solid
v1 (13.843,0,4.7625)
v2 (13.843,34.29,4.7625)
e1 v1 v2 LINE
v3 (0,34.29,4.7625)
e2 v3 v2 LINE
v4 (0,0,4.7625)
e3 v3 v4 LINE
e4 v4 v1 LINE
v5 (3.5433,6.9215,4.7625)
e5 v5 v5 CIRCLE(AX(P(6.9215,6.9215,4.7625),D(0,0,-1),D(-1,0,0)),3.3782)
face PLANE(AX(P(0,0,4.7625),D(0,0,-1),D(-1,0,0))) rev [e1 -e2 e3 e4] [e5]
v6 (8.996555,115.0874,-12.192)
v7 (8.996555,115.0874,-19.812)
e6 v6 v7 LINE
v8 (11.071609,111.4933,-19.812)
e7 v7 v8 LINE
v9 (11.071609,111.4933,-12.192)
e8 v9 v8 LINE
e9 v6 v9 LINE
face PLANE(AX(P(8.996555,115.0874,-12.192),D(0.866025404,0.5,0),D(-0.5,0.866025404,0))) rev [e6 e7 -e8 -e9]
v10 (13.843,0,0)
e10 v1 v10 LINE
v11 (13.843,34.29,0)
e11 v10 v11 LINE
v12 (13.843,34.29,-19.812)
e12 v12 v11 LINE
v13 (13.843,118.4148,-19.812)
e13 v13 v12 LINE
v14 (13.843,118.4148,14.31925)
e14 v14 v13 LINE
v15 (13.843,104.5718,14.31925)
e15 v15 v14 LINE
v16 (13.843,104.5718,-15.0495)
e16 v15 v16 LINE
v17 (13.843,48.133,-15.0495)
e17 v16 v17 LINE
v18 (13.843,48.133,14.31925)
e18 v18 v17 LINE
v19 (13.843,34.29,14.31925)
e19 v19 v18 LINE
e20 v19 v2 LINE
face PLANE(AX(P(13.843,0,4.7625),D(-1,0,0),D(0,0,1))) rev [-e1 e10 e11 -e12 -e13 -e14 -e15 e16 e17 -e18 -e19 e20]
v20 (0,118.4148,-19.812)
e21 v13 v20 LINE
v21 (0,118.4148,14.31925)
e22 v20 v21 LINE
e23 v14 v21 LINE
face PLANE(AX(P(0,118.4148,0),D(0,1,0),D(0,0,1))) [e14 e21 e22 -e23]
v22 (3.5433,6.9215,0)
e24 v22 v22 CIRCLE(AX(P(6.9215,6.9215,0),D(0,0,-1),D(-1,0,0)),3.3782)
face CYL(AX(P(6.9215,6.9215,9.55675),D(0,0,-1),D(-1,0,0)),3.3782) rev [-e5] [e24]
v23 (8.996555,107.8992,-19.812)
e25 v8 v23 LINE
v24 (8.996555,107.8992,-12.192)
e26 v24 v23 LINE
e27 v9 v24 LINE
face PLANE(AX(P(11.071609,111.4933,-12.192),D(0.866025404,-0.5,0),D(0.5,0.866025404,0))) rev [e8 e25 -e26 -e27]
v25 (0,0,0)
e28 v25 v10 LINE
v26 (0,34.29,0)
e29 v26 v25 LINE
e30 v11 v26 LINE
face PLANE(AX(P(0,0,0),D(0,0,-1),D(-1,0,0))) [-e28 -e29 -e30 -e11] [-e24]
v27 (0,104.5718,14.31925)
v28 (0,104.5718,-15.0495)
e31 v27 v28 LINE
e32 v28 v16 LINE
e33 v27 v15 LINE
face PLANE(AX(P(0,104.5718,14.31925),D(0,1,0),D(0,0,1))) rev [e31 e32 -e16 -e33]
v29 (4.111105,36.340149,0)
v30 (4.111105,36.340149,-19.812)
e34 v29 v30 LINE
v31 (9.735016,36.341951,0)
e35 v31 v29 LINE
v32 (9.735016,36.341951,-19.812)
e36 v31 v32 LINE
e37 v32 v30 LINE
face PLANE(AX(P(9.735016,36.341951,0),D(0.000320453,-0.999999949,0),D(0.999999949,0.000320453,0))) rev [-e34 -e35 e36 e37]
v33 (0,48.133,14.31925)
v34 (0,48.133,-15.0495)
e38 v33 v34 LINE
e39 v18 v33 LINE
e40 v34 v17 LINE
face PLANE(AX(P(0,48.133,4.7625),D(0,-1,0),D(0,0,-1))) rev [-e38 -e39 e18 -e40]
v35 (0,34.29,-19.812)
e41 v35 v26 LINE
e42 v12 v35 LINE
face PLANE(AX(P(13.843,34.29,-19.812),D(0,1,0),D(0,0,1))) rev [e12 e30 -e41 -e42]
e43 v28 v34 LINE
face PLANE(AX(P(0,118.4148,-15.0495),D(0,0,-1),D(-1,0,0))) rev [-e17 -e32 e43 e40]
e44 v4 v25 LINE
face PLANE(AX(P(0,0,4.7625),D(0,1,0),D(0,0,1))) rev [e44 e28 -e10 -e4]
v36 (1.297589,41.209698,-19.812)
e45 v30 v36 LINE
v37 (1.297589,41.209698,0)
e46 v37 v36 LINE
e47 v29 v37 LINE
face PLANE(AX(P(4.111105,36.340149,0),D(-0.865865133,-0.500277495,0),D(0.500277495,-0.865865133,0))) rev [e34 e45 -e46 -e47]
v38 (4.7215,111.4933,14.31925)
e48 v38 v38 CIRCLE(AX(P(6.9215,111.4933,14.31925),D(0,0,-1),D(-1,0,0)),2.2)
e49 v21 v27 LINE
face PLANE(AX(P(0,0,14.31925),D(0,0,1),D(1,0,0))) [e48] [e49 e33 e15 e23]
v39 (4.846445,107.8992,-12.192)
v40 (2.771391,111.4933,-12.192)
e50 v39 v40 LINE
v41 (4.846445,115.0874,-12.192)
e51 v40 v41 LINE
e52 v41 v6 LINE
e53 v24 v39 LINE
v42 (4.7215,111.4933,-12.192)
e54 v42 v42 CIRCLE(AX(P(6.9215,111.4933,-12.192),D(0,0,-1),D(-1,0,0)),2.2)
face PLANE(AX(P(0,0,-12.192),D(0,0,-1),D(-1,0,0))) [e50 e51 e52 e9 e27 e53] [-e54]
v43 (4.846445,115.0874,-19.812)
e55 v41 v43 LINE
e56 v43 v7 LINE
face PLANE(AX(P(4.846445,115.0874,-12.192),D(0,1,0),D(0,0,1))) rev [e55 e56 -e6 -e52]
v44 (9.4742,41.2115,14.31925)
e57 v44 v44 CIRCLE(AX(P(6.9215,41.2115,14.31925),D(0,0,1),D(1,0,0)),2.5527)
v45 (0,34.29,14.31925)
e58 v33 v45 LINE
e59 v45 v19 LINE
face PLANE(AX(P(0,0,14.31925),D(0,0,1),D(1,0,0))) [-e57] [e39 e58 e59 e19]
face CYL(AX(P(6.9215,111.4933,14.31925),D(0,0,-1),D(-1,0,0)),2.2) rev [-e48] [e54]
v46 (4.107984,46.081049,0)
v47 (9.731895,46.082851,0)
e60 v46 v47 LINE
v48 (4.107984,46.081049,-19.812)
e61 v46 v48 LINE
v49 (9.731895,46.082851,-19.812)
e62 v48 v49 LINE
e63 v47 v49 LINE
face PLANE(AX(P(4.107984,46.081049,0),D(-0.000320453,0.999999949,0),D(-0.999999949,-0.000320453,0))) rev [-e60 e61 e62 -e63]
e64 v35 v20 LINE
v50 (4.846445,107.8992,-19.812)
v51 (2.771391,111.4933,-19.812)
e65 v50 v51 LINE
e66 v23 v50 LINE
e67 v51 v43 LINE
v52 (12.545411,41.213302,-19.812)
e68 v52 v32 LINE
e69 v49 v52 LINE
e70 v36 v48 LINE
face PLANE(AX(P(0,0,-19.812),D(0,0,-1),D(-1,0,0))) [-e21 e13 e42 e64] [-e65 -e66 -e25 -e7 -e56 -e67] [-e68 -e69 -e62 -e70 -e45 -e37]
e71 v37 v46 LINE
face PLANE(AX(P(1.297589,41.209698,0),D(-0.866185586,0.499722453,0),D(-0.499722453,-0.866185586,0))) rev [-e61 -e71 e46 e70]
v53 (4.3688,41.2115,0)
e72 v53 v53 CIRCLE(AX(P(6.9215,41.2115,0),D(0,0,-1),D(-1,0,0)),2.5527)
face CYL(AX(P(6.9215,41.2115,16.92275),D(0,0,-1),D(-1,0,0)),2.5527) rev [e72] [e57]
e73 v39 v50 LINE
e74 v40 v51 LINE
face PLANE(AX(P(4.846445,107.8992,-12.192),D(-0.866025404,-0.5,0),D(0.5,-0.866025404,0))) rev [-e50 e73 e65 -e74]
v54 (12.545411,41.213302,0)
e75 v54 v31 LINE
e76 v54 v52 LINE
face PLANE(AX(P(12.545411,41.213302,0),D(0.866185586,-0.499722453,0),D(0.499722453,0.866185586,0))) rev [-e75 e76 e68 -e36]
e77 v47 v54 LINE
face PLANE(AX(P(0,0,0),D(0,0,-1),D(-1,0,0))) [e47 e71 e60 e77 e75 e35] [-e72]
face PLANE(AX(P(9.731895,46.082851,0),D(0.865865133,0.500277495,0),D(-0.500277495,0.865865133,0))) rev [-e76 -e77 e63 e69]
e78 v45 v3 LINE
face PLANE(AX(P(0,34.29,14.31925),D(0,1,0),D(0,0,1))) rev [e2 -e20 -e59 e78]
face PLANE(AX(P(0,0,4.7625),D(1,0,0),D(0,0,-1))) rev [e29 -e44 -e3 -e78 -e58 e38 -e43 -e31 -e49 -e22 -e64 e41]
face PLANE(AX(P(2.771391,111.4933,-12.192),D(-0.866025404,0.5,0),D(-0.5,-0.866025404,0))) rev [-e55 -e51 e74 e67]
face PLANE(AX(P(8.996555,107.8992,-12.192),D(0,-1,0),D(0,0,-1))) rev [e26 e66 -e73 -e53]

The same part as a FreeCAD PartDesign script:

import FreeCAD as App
import Part
import Sketcher

V = App.Vector
Q = App.Units.Quantity


def add_polygon(sketch, points):
    """Adds a closed chain of lines whose ends are joined by coincident constraints."""
    first, n = sketch.GeometryCount, len(points)
    for a, b in zip(points, points[1:] + points[:1]):
        sketch.addGeometry(Part.LineSegment(App.Vector(*a, 0), App.Vector(*b, 0)), False)
    for i in range(n):
        sketch.addConstraint(Sketcher.Constraint("Coincident", first + i, 2, first + (i + 1) % n, 1))

doc = App.newDocument("Part")
body = doc.addObject("PartDesign::Body", "Body")

# Sketch on XY plane
sketch1 = body.newObject("Sketcher::SketchObject", "Sketch")
sketch1.AttachmentSupport = (doc.getObject("XY_Plane"), [""])
sketch1.MapMode = "FlatFace"
add_polygon(sketch1, [(0, 48), (0, 0), (14, 0), (14, 48)])  # lines 0-3
sketch1.addConstraint([
    Sketcher.Constraint("Vertical", 0),
    Sketcher.Constraint("Horizontal", 1),
    Sketcher.Constraint("Vertical", 2),
    Sketcher.Constraint("Horizontal", 3),
    Sketcher.Constraint("Coincident", 0, 2, -1, 1),
    Sketcher.Constraint("DistanceX", 1, 1, 1, 2, Q("0.545 in")),
    Sketcher.Constraint("DistanceY", 0, 2, 0, 1, Q("1.895 in")),
])
pad1 = body.newObject("PartDesign::Pad", "Pad")
pad1.Profile = sketch1
pad1.Length = Q("0.1875 in")

# Sketch on XY plane
sketch2 = body.newObject("Sketcher::SketchObject", "Sketch001")
sketch2.AttachmentSupport = (doc.getObject("XY_Plane"), [""])
sketch2.MapMode = "FlatFace"
sketch2.AttachmentOffset = App.Placement(V(0, 0, 0.1875 * 25.4), App.Rotation())
add_polygon(sketch2, [(0, 48), (0, 34), (14, 34), (14, 48)])  # lines 0-3
sketch2.addConstraint([
    Sketcher.Constraint("Vertical", 0),
    Sketcher.Constraint("Horizontal", 1),
    Sketcher.Constraint("Vertical", 2),
    Sketcher.Constraint("Horizontal", 3),
    Sketcher.Constraint("PointOnObject", 0, 2, -2),
    Sketcher.Constraint("Equal", 3, 0),
    Sketcher.Constraint("DistanceX", 1, 1, 1, 2, Q("0.545 in")),
    Sketcher.Constraint("DistanceY", -1, 1, 0, 2, Q("1.35 in")),
])
pad2 = body.newObject("PartDesign::Pad", "Pad001")
pad2.Profile = sketch2
pad2.Length = 9.55675

# Sketch on XY plane
sketch3 = body.newObject("Sketcher::SketchObject", "Sketch002")
sketch3.AttachmentSupport = (doc.getObject("XY_Plane"), [""])
sketch3.MapMode = "FlatFace"
sketch3.addGeometry(Part.Circle(V(6.9, 6.9, 0), V(0, 0, 1), 3.4), False)
sketch3.addConstraint([
    Sketcher.Constraint("Diameter", 0, Q("0.266 in")),
    Sketcher.Constraint("DistanceX", -1, 1, 0, 3, Q("0.2725 in")),
    Sketcher.Constraint("DistanceY", -1, 1, 0, 3, Q("0.2725 in")),
])
pocket1 = body.newObject("PartDesign::Pocket", "Pocket")
pocket1.Profile = sketch3
pocket1.Length = 9.55675
pocket1.Reversed = True

# Sketch on XY plane
sketch4 = body.newObject("Sketcher::SketchObject", "Sketch003")
sketch4.AttachmentSupport = (doc.getObject("XY_Plane"), [""])
sketch4.MapMode = "FlatFace"
sketch4.addGeometry(Part.Circle(V(6.9, 41.2, 0), V(0, 0, 1), 2.6), False)
sketch4.addConstraint([
    Sketcher.Constraint("Diameter", 0, Q("0.201 in")),
    Sketcher.Constraint("DistanceX", -1, 1, 0, 3, Q("0.2725 in")),
    Sketcher.Constraint("DistanceY", -1, 1, 0, 3, Q("1.6225 in")),
])
pocket2 = body.newObject("PartDesign::Pocket", "Pocket001")
pocket2.Profile = sketch4
pocket2.Length = 16.92275
pocket2.Reversed = True

# Sketch on XY plane
sketch5 = body.newObject("Sketcher::SketchObject", "Sketch004")
sketch5.AttachmentSupport = (doc.getObject("XY_Plane"), [""])
sketch5.MapMode = "FlatFace"
add_polygon(sketch5, [(14, 48), (14, 34), (0, 34), (0, 48)])  # lines 0-3
sketch5.addConstraint([
    Sketcher.Constraint("Vertical", 0),
    Sketcher.Constraint("Horizontal", 1),
    Sketcher.Constraint("Vertical", 2),
    Sketcher.Constraint("Horizontal", 3),
    Sketcher.Constraint("PointOnObject", 1, 2, -2),
    Sketcher.Constraint("Equal", 3, 0),
    Sketcher.Constraint("DistanceX", 1, 2, 1, 1, Q("0.545 in")),
    Sketcher.Constraint("DistanceY", -1, 1, 0, 2, Q("1.35 in")),
])
pad3 = body.newObject("PartDesign::Pad", "Pad002")
pad3.Profile = sketch5
pad3.Length = Q("0.78 in")
pad3.Reversed = True

# Sketch on XY plane
sketch6 = body.newObject("Sketcher::SketchObject", "Sketch005")
sketch6.AttachmentSupport = (doc.getObject("XY_Plane"), [""])
sketch6.MapMode = "FlatFace"
sketch6.AttachmentOffset = App.Placement(V(0, 0, -0.78 * 25.4), App.Rotation())
add_polygon(sketch6, [(10, 46), (13, 41), (10, 36), (4, 36), (1, 41), (4, 46)])  # lines 0-5
sketch6.addConstraint([
    Sketcher.Constraint("Parallel", 0, 3),
    Sketcher.Constraint("Parallel", 1, 4),
    Sketcher.Constraint("Parallel", 2, 5),
    Sketcher.Constraint("Equal", 0, 1),
    Sketcher.Constraint("Equal", 1, 2),
    Sketcher.Constraint("Equal", 2, 3),
    Sketcher.Constraint("DistanceY", 2, 2, 4, 2, Q("0.3835 in")),
    Sketcher.Constraint("DistanceY", 2, 2, 5, 2, Q("9.742702 mm")),
    Sketcher.Constraint("Distance", 0, Q("5.623911 mm")),
    Sketcher.Constraint("DistanceX", -1, 1, 0, 2, Q("12.545411 mm")),
    Sketcher.Constraint("DistanceY", -1, 1, 1, 2, Q("36.341951 mm")),
    Sketcher.Constraint("DistanceY", 1, 2, 0, 2, Q("4.871351 mm")),
])
pocket3 = body.newObject("PartDesign::Pocket", "Pocket002")
pocket3.Profile = sketch6
pocket3.Length = Q("0.78 in")
pocket3.Reversed = True

# Sketch on XZ plane
sketch7 = body.newObject("Sketcher::SketchObject", "Sketch006")
sketch7.AttachmentSupport = (doc.getObject("XZ_Plane"), [""])
sketch7.MapMode = "FlatFace"
sketch7.AttachmentOffset = App.Placement(V(0, 0, -1.895 * 25.4), App.Rotation())
add_polygon(sketch7, [(0, -19.8), (0, -15), (13.8, -15), (13.8, -19.8)])  # lines 0-3
sketch7.addConstraint([
    Sketcher.Constraint("Vertical", 0),
    Sketcher.Constraint("Horizontal", 1),
    Sketcher.Constraint("Vertical", 2),
    Sketcher.Constraint("Horizontal", 3),
    Sketcher.Constraint("PointOnObject", 0, 2, -2),
    Sketcher.Constraint("DistanceX", 1, 1, 1, 2, Q("0.545 in")),
    Sketcher.Constraint("DistanceY", 0, 1, 0, 2, Q("0.1875 in")),
    Sketcher.Constraint("DistanceY", 2, 2, -1, 1, Q("0.78 in")),
])
pad4 = body.newObject("PartDesign::Pad", "Pad003")
pad4.Profile = sketch7
pad4.Length = Q("2.767 in")
pad4.Reversed = True

# Sketch on XY plane
sketch8 = body.newObject("Sketcher::SketchObject", "Sketch007")
sketch8.AttachmentSupport = (doc.getObject("XY_Plane"), [""])
sketch8.MapMode = "FlatFace"
sketch8.AttachmentOffset = App.Placement(V(0, 0, -0.5925 * 25.4), App.Rotation())
add_polygon(sketch8, [(0, 118), (0, 105), (14, 105), (14, 118)])  # lines 0-3
sketch8.addConstraint([
    Sketcher.Constraint("Vertical", 0),
    Sketcher.Constraint("Horizontal", 1),
    Sketcher.Constraint("Vertical", 2),
    Sketcher.Constraint("Horizontal", 3),
    Sketcher.Constraint("PointOnObject", 0, 2, -2),
    Sketcher.Constraint("Equal", 3, 0),
    Sketcher.Constraint("DistanceX", 1, 1, 1, 2, Q("0.545 in")),
    Sketcher.Constraint("DistanceY", -1, 1, 0, 2, Q("4.117 in")),
])
pad5 = body.newObject("PartDesign::Pad", "Pad004")
pad5.Profile = sketch8
pad5.Length = Q("1.15625 in")

# Sketch on XY plane
sketch9 = body.newObject("Sketcher::SketchObject", "Sketch008")
sketch9.AttachmentSupport = (doc.getObject("XY_Plane"), [""])
sketch9.MapMode = "FlatFace"
sketch9.AttachmentOffset = App.Placement(V(0, 0, -0.78 * 25.4), App.Rotation())
add_polygon(sketch9, [(9, 115.1), (11.1, 111.5), (9, 107.9), (4.8, 107.9), (2.8, 111.5), (4.8, 115.1)])  # lines 0-5
sketch9.addConstraint([
    Sketcher.Constraint("Horizontal", 2),
    Sketcher.Constraint("Horizontal", 5),
    Sketcher.Constraint("Parallel", 0, 3),
    Sketcher.Constraint("Parallel", 1, 4),
    Sketcher.Constraint("Horizontal", 0, 2, 3, 2),
    Sketcher.Constraint("Vertical", 2, 2, 4, 2),
    Sketcher.Constraint("Vertical", 1, 2, 5, 2),
    Sketcher.Constraint("Angle", 0, Q("-60 deg")),
    Sketcher.Constraint("DistanceY", -1, 1, 1, 2, Q("4.248 in")),
    Sketcher.Constraint("DistanceY", -1, 1, 4, 2, Q("4.531 in")),
    Sketcher.Constraint("DistanceX", 2, 2, 2, 1, Q("4.150109 mm")),
    Sketcher.Constraint("DistanceX", -1, 1, 0, 2, Q("11.071609 mm")),
])
pocket4 = body.newObject("PartDesign::Pocket", "Pocket003")
pocket4.Profile = sketch9
pocket4.Length = Q("0.3 in")
pocket4.Reversed = True

# Sketch on XY plane
sketch10 = body.newObject("Sketcher::SketchObject", "Sketch009")
sketch10.AttachmentSupport = (doc.getObject("XY_Plane"), [""])
sketch10.MapMode = "FlatFace"
sketch10.AttachmentOffset = App.Placement(V(0, 0, -0.48 * 25.4), App.Rotation())
sketch10.addGeometry(Part.Circle(V(6.9, 111.5, 0), V(0, 0, 1), 2.2), False)
sketch10.addConstraint([
    Sketcher.Constraint("Diameter", 0, Q("4.4 mm")),
    Sketcher.Constraint("DistanceX", -1, 1, 0, 3, Q("0.2725 in")),
    Sketcher.Constraint("DistanceY", -1, 1, 0, 3, Q("4.3895 in")),
])
pocket5 = body.newObject("PartDesign::Pocket", "Pocket004")
pocket5.Profile = sketch10
pocket5.Type = "ThroughAll"
pocket5.Reversed = True

doc.recompute()
